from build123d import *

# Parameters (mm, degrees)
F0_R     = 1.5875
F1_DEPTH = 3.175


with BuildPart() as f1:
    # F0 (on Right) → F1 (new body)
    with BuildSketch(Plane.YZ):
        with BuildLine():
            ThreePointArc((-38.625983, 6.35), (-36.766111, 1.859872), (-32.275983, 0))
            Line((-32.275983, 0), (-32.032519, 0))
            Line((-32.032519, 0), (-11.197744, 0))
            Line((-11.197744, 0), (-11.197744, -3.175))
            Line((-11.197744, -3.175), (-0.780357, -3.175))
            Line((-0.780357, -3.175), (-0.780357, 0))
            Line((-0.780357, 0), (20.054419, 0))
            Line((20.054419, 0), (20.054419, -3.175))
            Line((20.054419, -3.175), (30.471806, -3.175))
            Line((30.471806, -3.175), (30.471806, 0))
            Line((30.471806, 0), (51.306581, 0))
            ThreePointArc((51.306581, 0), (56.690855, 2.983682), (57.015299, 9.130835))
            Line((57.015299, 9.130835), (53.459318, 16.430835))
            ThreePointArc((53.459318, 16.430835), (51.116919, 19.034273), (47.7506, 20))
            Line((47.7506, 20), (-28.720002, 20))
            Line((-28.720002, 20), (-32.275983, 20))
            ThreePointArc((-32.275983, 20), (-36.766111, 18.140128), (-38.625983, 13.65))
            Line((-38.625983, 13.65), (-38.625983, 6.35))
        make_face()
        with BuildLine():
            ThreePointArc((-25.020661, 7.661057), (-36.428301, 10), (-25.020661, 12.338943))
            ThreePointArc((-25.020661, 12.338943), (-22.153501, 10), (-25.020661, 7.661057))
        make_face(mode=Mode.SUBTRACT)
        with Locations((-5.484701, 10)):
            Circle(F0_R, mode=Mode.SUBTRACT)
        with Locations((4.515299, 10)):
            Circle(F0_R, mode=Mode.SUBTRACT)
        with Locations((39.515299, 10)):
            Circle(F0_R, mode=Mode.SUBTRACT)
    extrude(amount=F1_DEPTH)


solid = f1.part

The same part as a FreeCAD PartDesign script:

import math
import FreeCAD as App
import Part
import Sketcher
from FreeCAD import Vector
Q = App.Units.Quantity

doc = App.newDocument("Part")
body = doc.addObject("PartDesign::Body", "Body")

# Sketch on YZ plane
sketch1 = body.newObject("Sketcher::SketchObject", "Sketch")
sketch1.AttachmentSupport = (doc.getObject("YZ_Plane"), [""])
sketch1.MapMode = "FlatFace"
sketch1.addGeometry([
    Part.ArcOfCircle(Part.Circle(Vector(-32.3, 6.4, 0), Vector(0, 0, 1), 6.4), math.radians(-180), math.radians(-90)),  # 0
    Part.LineSegment(Vector(-32.3, 0, 0), Vector(-11.2, 0, 0)),  # 1
    Part.LineSegment(Vector(-11.2, 0, 0), Vector(-11.2, -3.2, 0)),  # 2
    Part.LineSegment(Vector(-11.2, -3.2, 0), Vector(-0.8, -3.2, 0)),  # 3
    Part.LineSegment(Vector(-0.8, -3.2, 0), Vector(-0.8, 0, 0)),  # 4
    Part.LineSegment(Vector(-0.8, 0, 0), Vector(20.1, 0, 0)),  # 5
    Part.LineSegment(Vector(20.1, 0, 0), Vector(20.1, -3.2, 0)),  # 6
    Part.LineSegment(Vector(20.1, -3.2, 0), Vector(30.5, -3.2, 0)),  # 7
    Part.LineSegment(Vector(30.5, -3.2, 0), Vector(30.5, 0, 0)),  # 8
    Part.LineSegment(Vector(30.5, 0, 0), Vector(51.3, 0, 0)),  # 9
    Part.ArcOfCircle(Part.Circle(Vector(51.3, 6.4, 0), Vector(0, 0, 1), 6.4), math.radians(-90), math.radians(26)),  # 10
    Part.LineSegment(Vector(57, 9.1, 0), Vector(53.5, 16.4, 0)),  # 11
    Part.ArcOfCircle(Part.Circle(Vector(47.8, 13.6, 0), Vector(0, 0, 1), 6.4), math.radians(26), math.radians(90)),  # 12
    Part.LineSegment(Vector(47.8, 20, 0), Vector(-32.3, 20, 0)),  # 13
    Part.ArcOfCircle(Part.Circle(Vector(-32.3, 13.6, 0), Vector(0, 0, 1), 6.4), math.radians(90), math.radians(180)),  # 14
    Part.LineSegment(Vector(-38.6, 13.7, 0), Vector(-38.6, 6.3, 0)),  # 15
    Part.ArcOfCircle(Part.Circle(Vector(-24.5, 10, 0), Vector(0, 0, 1), 2.4), math.radians(-102), math.radians(102)),  # 16
    Part.ArcOfCircle(Part.Circle(Vector(-30.5, 10, 0), Vector(0, 0, 1), 5.9), math.radians(23), math.radians(337)),  # 17
    Part.Circle(Vector(-5.5, 10, 0), Vector(0, 0, 1), 1.6),  # 18
    Part.Circle(Vector(4.5, 10, 0), Vector(0, 0, 1), 1.6),  # 19
    Part.Circle(Vector(39.5, 10, 0), Vector(0, 0, 1), 1.6),  # 20
], False)
sketch1.addConstraint([
    Sketcher.Constraint("Tangent", 0, 2, 1, 1),
    Sketcher.Constraint("Coincident", 1, 2, 2, 1),
    Sketcher.Constraint("Coincident", 2, 2, 3, 1),
    Sketcher.Constraint("Coincident", 3, 2, 4, 1),
    Sketcher.Constraint("Coincident", 4, 2, 5, 1),
    Sketcher.Constraint("Coincident", 5, 2, 6, 1),
    Sketcher.Constraint("Coincident", 6, 2, 7, 1),
    Sketcher.Constraint("Coincident", 7, 2, 8, 1),
    Sketcher.Constraint("Coincident", 8, 2, 9, 1),
    Sketcher.Constraint("Tangent", 9, 2, 10, 1),
    Sketcher.Constraint("Tangent", 10, 2, 11, 1),
    Sketcher.Constraint("Tangent", 11, 2, 12, 1),
    Sketcher.Constraint("Tangent", 12, 2, 13, 1),
    Sketcher.Constraint("Tangent", 13, 2, 14, 1),
    Sketcher.Constraint("Tangent", 14, 2, 15, 1),
    Sketcher.Constraint("Tangent", 15, 2, 0, 1),
    Sketcher.Constraint("Coincident", 16, 1, 17, 2),
    Sketcher.Constraint("Coincident", 17, 1, 16, 2),
    Sketcher.Constraint("Horizontal", 1),
    Sketcher.Constraint("Vertical", 2),
    Sketcher.Constraint("Horizontal", 3),
    Sketcher.Constraint("Vertical", 4),
    Sketcher.Constraint("Horizontal", 5),
    Sketcher.Constraint("Vertical", 6),
    Sketcher.Constraint("Horizontal", 7),
    Sketcher.Constraint("Vertical", 8),
    Sketcher.Constraint("Horizontal", 9),
    Sketcher.Constraint("Horizontal", 13),
    Sketcher.Constraint("Vertical", 15),
    Sketcher.Constraint("Equal", 0, 10),
    Sketcher.Constraint("Equal", 10, 12),
    Sketcher.Constraint("Equal", 12, 14),
    Sketcher.Constraint("Equal", 18, 19),
    Sketcher.Constraint("Equal", 19, 20),
    Sketcher.Constraint("PointOnObject", 0, 2, -1),
    Sketcher.Constraint("PointOnObject", 4, 2, -1),
    Sketcher.Constraint("PointOnObject", 8, 2, -1),
    Sketcher.Constraint("Horizontal", 16, 3, 17, 3),
    Sketcher.Constraint("Horizontal", 17, 3, 18, 3),
    Sketcher.Constraint("Horizontal", 18, 3, 19, 3),
    Sketcher.Constraint("Horizontal", 19, 3, 20, 3),
    Sketcher.Constraint("Horizontal", 3, 2, 6, 2),
    Sketcher.Constraint("Equal", 3, 7),
    Sketcher.Constraint("Equal", 5, 9),
    Sketcher.Constraint("Radius", 0, Q("0.25 in")),
    Sketcher.Constraint("Diameter", 18, Q("0.125 in")),
    Sketcher.Constraint("Radius", 16, Q("0.094 in")),
    Sketcher.Constraint("Radius", 17, Q("0.234 in")),
    Sketcher.Constraint("DistanceY", 2, 2, 2, 1, Q("0.125 in")),
    Sketcher.Constraint("DistanceX", 17, 3, 16, 3, Q("0.234 in")),
    Sketcher.Constraint("DistanceY", 15, 2, 15, 1, 7.3),
    Sketcher.Constraint("DistanceX", 1, 1, 1, 2, 21.078239),
    Sketcher.Constraint("DistanceX", -1, 1, 12, 3, 47.750599),
    Sketcher.Constraint("DistanceX", 16, 3, -1, 1, 24.541101),
    Sketcher.Constraint("DistanceY", -1, 1, 16, 3, 10.0),
    Sketcher.Constraint("DistanceX", 18, 3, -1, 1, 5.484701),
    Sketcher.Constraint("DistanceX", -1, 1, 19, 3, 4.515299),
    Sketcher.Constraint("DistanceX", -1, 1, 20, 3, 39.515299),
    Sketcher.Constraint("DistanceX", -1, 1, 10, 2, 57.015299),
    Sketcher.Constraint("DistanceX", 3, 1, 3, 2, 10.417387),
    Sketcher.Constraint("DistanceX", 5, 1, 5, 2, 20.834776),
])
pad1 = body.newObject("PartDesign::Pad", "Pad")
pad1.Profile = sketch1
pad1.Length = Q("0.125 in")

doc.recompute()
